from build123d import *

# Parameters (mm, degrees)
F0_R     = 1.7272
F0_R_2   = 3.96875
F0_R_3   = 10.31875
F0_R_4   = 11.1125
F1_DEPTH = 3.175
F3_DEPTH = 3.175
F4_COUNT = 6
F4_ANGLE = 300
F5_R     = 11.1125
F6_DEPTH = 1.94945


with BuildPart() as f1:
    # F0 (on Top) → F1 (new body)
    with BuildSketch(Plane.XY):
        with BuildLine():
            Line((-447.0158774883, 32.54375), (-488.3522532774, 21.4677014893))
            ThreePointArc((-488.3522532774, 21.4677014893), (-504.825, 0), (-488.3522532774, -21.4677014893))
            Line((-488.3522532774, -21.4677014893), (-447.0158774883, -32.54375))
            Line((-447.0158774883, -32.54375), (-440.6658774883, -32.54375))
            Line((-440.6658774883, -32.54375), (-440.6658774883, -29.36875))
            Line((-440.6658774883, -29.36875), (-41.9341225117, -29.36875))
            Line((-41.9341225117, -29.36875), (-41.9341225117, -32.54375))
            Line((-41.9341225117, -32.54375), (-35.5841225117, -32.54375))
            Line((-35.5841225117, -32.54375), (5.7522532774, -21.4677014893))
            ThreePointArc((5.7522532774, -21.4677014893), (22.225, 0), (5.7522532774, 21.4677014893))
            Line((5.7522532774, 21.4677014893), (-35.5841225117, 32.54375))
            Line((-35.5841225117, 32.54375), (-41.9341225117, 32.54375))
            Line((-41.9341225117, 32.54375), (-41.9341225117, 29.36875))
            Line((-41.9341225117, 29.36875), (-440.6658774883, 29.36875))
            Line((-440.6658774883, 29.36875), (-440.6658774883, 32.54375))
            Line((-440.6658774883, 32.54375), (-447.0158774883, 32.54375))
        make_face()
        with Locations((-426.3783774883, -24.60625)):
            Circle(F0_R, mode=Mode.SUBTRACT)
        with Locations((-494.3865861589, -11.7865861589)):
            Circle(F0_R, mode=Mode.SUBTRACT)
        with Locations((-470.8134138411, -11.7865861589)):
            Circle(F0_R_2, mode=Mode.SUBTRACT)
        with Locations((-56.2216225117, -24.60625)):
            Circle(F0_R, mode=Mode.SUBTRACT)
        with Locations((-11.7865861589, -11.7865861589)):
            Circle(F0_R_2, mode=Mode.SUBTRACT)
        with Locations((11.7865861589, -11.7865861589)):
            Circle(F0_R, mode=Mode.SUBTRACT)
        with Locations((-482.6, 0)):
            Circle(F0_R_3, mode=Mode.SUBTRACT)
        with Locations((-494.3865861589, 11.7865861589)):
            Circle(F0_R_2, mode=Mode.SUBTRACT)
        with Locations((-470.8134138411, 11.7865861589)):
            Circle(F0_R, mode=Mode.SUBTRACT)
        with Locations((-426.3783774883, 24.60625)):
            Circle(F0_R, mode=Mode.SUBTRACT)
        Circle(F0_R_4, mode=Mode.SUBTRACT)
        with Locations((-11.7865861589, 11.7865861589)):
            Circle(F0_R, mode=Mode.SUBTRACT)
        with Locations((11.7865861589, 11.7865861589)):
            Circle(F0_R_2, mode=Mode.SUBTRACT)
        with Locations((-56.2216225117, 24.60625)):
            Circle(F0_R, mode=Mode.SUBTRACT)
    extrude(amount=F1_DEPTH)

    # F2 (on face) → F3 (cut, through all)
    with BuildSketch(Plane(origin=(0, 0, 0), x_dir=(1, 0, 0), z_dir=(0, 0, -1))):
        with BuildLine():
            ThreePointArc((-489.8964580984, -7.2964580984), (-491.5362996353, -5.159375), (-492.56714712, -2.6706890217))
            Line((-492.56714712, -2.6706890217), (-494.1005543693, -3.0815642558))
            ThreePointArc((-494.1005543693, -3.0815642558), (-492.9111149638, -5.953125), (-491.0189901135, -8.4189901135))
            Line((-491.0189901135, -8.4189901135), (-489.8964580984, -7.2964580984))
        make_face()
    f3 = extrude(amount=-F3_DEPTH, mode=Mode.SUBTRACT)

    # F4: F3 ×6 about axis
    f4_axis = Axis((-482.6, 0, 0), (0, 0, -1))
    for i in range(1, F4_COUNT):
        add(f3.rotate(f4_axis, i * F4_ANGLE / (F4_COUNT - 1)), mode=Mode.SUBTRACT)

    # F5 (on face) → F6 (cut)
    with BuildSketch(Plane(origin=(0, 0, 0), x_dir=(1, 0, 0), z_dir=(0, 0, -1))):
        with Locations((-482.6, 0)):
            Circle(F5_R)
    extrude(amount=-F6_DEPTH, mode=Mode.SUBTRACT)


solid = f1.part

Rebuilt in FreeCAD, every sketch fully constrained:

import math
import FreeCAD as App
import Part
import Sketcher
Q = App.Units.Quantity

doc = App.newDocument("Part")
body = doc.addObject("PartDesign::Body", "Body")

# Sketch on XY plane
sketch1 = body.newObject("Sketcher::SketchObject", "Sketch")
sketch1.AttachmentSupport = (doc.getObject("XY_Plane"), [""])
sketch1.MapMode = "FlatFace"
sketch1.addGeometry([
    Part.LineSegment(App.Vector(-447, 32.5, 0), App.Vector(-488.4, 21.5, 0)),  # 0
    Part.ArcOfCircle(Part.Circle(App.Vector(-482.6, 0, 0), App.Vector(0, 0, 1), 22.2), math.radians(105), math.radians(255)),  # 1
    Part.LineSegment(App.Vector(-488.4, -21.5, 0), App.Vector(-447, -32.5, 0)),  # 2
    Part.LineSegment(App.Vector(-447, -32.5, 0), App.Vector(-440.7, -32.5, 0)),  # 3
    Part.LineSegment(App.Vector(-440.7, -32.5, 0), App.Vector(-440.7, -29.4, 0)),  # 4
    Part.LineSegment(App.Vector(-440.7, -29.4, 0), App.Vector(-41.9, -29.4, 0)),  # 5
    Part.LineSegment(App.Vector(-41.9, -29.4, 0), App.Vector(-41.9, -32.5, 0)),  # 6
    Part.LineSegment(App.Vector(-41.9, -32.5, 0), App.Vector(-35.6, -32.5, 0)),  # 7
    Part.LineSegment(App.Vector(-35.6, -32.5, 0), App.Vector(5.8, -21.5, 0)),  # 8
    Part.ArcOfCircle(Part.Circle(App.Vector(0, 0, 0), App.Vector(0, 0, 1), 22.2), math.radians(-75), math.radians(75)),  # 9
    Part.LineSegment(App.Vector(5.8, 21.5, 0), App.Vector(-35.6, 32.5, 0)),  # 10
    Part.LineSegment(App.Vector(-35.6, 32.5, 0), App.Vector(-41.9, 32.5, 0)),  # 11
    Part.LineSegment(App.Vector(-41.9, 32.5, 0), App.Vector(-41.9, 29.4, 0)),  # 12
    Part.LineSegment(App.Vector(-41.9, 29.4, 0), App.Vector(-440.7, 29.4, 0)),  # 13
    Part.LineSegment(App.Vector(-440.7, 29.4, 0), App.Vector(-440.7, 32.5, 0)),  # 14
    Part.LineSegment(App.Vector(-440.7, 32.5, 0), App.Vector(-447, 32.5, 0)),  # 15
    Part.Circle(App.Vector(-426.4, -24.6, 0), App.Vector(0, 0, 1), 1.7),  # 16
    Part.Circle(App.Vector(-494.4, -11.8, 0), App.Vector(0, 0, 1), 1.7),  # 17
    Part.Circle(App.Vector(-470.8, -11.8, 0), App.Vector(0, 0, 1), 4),  # 18
    Part.Circle(App.Vector(-56.2, -24.6, 0), App.Vector(0, 0, 1), 1.7),  # 19
    Part.Circle(App.Vector(-11.8, -11.8, 0), App.Vector(0, 0, 1), 4),  # 20
    Part.Circle(App.Vector(11.8, -11.8, 0), App.Vector(0, 0, 1), 1.7),  # 21
    Part.Circle(App.Vector(-482.6, 0, 0), App.Vector(0, 0, 1), 10.3),  # 22
    Part.Circle(App.Vector(-494.4, 11.8, 0), App.Vector(0, 0, 1), 4),  # 23
    Part.Circle(App.Vector(-470.8, 11.8, 0), App.Vector(0, 0, 1), 1.7),  # 24
    Part.Circle(App.Vector(-426.4, 24.6, 0), App.Vector(0, 0, 1), 1.7),  # 25
    Part.Circle(App.Vector(0, 0, 0), App.Vector(0, 0, 1), 11.1),  # 26
    Part.Circle(App.Vector(-11.8, 11.8, 0), App.Vector(0, 0, 1), 1.7),  # 27
    Part.Circle(App.Vector(11.8, 11.8, 0), App.Vector(0, 0, 1), 4),  # 28
    Part.Circle(App.Vector(-56.2, 24.6, 0), App.Vector(0, 0, 1), 1.7),  # 29
], False)
sketch1.addConstraint([
    Sketcher.Constraint("Tangent", 0, 2, 1, 1),
    Sketcher.Constraint("Tangent", 1, 2, 2, 1),
    Sketcher.Constraint("Coincident", 2, 2, 3, 1),
    Sketcher.Constraint("Coincident", 3, 2, 4, 1),
    Sketcher.Constraint("Coincident", 4, 2, 5, 1),
    Sketcher.Constraint("Coincident", 5, 2, 6, 1),
    Sketcher.Constraint("Coincident", 6, 2, 7, 1),
    Sketcher.Constraint("Coincident", 7, 2, 8, 1),
    Sketcher.Constraint("Tangent", 8, 2, 9, 1),
    Sketcher.Constraint("Tangent", 9, 2, 10, 1),
    Sketcher.Constraint("Coincident", 10, 2, 11, 1),
    Sketcher.Constraint("Coincident", 11, 2, 12, 1),
    Sketcher.Constraint("Coincident", 12, 2, 13, 1),
    Sketcher.Constraint("Coincident", 13, 2, 14, 1),
    Sketcher.Constraint("Coincident", 14, 2, 15, 1),
    Sketcher.Constraint("Coincident", 15, 2, 0, 1),
    Sketcher.Constraint("Horizontal", 3),
    Sketcher.Constraint("Vertical", 4),
    Sketcher.Constraint("Horizontal", 5),
    Sketcher.Constraint("Vertical", 6),
    Sketcher.Constraint("Horizontal", 7),
    Sketcher.Constraint("Horizontal", 11),
    Sketcher.Constraint("Vertical", 12),
    Sketcher.Constraint("Horizontal", 13),
    Sketcher.Constraint("Vertical", 14),
    Sketcher.Constraint("Horizontal", 15),
    Sketcher.Constraint("Coincident", 9, 3, -1, 1),
    Sketcher.Constraint("Coincident", 26, 3, -1, 1),
    Sketcher.Constraint("Coincident", 22, 3, 1, 3),
    Sketcher.Constraint("Equal", 1, 9),
    Sketcher.Constraint("Equal", 16, 17),
    Sketcher.Constraint("Equal", 17, 19),
    Sketcher.Constraint("Equal", 18, 20),
    Sketcher.Constraint("Equal", 19, 21),
    Sketcher.Constraint("Equal", 20, 23),
    Sketcher.Constraint("Equal", 21, 24),
    Sketcher.Constraint("Equal", 24, 25),
    Sketcher.Constraint("Equal", 25, 27),
    Sketcher.Constraint("Equal", 23, 28),
    Sketcher.Constraint("Equal", 27, 29),
    Sketcher.Constraint("Symmetric", 21, 3, 27, 3, -1, 1),
    Sketcher.Constraint("Symmetric", 20, 3, 28, 3, -1, 1),
    Sketcher.Constraint("Symmetric", 20, 3, 21, 3, -2),
    Sketcher.Constraint("Symmetric", 17, 3, 23, 3, -1),
    Sketcher.Constraint("Symmetric", 18, 3, 24, 3, -1),
    Sketcher.Constraint("Symmetric", 16, 3, 25, 3, -1),
    Sketcher.Constraint("Symmetric", 19, 3, 29, 3, -1),
    Sketcher.Constraint("Symmetric", 0, 2, 1, 2, -1),
    Sketcher.Constraint("Symmetric", 7, 2, 10, 2, -1),
    Sketcher.Constraint("Symmetric", 5, 2, 12, 2, -1),
    Sketcher.Constraint("Symmetric", 3, 2, 14, 2, -1),
    Sketcher.Constraint("Parallel", 0, 8),
    Sketcher.Constraint("Horizontal", 17, 3, 18, 3),
    Sketcher.Constraint("Horizontal", 16, 3, 19, 3),
    Sketcher.Constraint("Horizontal", 18, 3, 20, 3),
    Sketcher.Constraint("Horizontal", 3, 2, 6, 2),
    Sketcher.Constraint("Equal", 3, 7),
    Sketcher.Constraint("Diameter", 16, Q("0.136 in")),
    Sketcher.Constraint("Diameter", 18, Q("0.3125 in")),
    Sketcher.Constraint("Diameter", 22, Q("0.8125 in")),
    Sketcher.Constraint("Diameter", 26, Q("0.875 in")),
    Sketcher.Constraint("DistanceX", 1, 3, -1, 1, Q("19 in")),
    Sketcher.Constraint("Angle", 0, Q("-165 deg")),
    Sketcher.Constraint("Radius", 1, Q("0.875 in")),
    Sketcher.Constraint("DistanceX", 18, 3, 21, 3, Q("19 in")),
    Sketcher.Constraint("DistanceX", 3, 1, 3, 2, Q("0.25 in")),
    Sketcher.Constraint("DistanceY", 4, 1, 4, 2, Q("0.125 in")),
    Sketcher.Constraint("DistanceY", 16, 3, -1, 1, Q("0.96875 in")),
    Sketcher.Constraint("DistanceY", 2, 2, -1, 1, Q("1.28125 in")),
    Sketcher.Constraint("DistanceX", 2, 2, 16, 3, Q("0.8125 in")),
    Sketcher.Constraint("DistanceX", 19, 3, 5, 2, Q("0.5625 in")),
    Sketcher.Constraint("DistanceX", 17, 3, 16, 3, Q("68.008209 mm")),
    Sketcher.Constraint("DistanceX", 18, 3, 19, 3, Q("414.591791 mm")),
    Sketcher.Constraint("DistanceY", 17, 3, -1, 1, Q("11.786586 mm")),
])
pad1 = body.newObject("PartDesign::Pad", "Pad")
pad1.Profile = sketch1
pad1.Length = Q("0.125 in")

# Sketch on XY plane
sketch2 = body.newObject("Sketcher::SketchObject", "Sketch001")
sketch2.AttachmentSupport = (doc.getObject("XY_Plane"), [""])
sketch2.MapMode = "FlatFace"
sketch2.addGeometry([
    Part.ArcOfCircle(Part.Circle(App.Vector(-482.6, 0, 0), App.Vector(0, 0, 1), 10.3), math.radians(135), math.radians(165)),
    Part.LineSegment(App.Vector(-492.6, 2.7, 0), App.Vector(-494.1, 3.1, 0)),
    Part.ArcOfCircle(Part.Circle(App.Vector(-482.6, 0, 0), App.Vector(0, 0, 1), 11.9), math.radians(135), math.radians(165)),
    Part.LineSegment(App.Vector(-491, 8.4, 0), App.Vector(-489.9, 7.3, 0)),
], False)
sketch2.addConstraint([
    Sketcher.Constraint("Coincident", 0, 2, 1, 1),
    Sketcher.Constraint("Coincident", 1, 2, 2, 2),
    Sketcher.Constraint("Coincident", 2, 1, 3, 1),
    Sketcher.Constraint("Coincident", 3, 2, 0, 1),
    Sketcher.Constraint("Coincident", 2, 3, 0, 3),
    Sketcher.Constraint("PointOnObject", 0, 3, -1),
    Sketcher.Constraint("DistanceX", 0, 3, -1, 1, Q("19 in")),
    Sketcher.Constraint("Angle", 1, Q("165 deg")),
    Sketcher.Constraint("Angle", 3, Q("-45 deg")),
    Sketcher.Constraint("Radius", 0, Q("0.40625 in")),
    Sketcher.Constraint("Radius", 2, Q("0.46875 in")),
    Sketcher.Constraint("DistanceY", 0, 2, 2, 1, Q("5.748301 mm")),
    Sketcher.Constraint("DistanceY", -1, 1, 0, 2, Q("2.670689 mm")),
])
pocket1 = body.newObject("PartDesign::Pocket", "Pocket")
pocket1.Profile = sketch2
pocket1.Type = "ThroughAll"
pocket1.Reversed = True
doc.recompute()

datumline = body.newObject("PartDesign::Line", "DatumLine")
datumline.Placement = App.Placement(App.Vector(-482.6, 0, 0), App.Rotation(App.Vector(0, 0, 1), App.Vector(0, 0, -1)))
polarpattern = body.newObject("PartDesign::PolarPattern", "PolarPattern")
polarpattern.Originals = [pocket1]
polarpattern.Axis = (datumline, [""])
polarpattern.Angle = 360
polarpattern.Occurrences = 6
body.Tip = polarpattern

# Sketch on XY plane
sketch3 = body.newObject("Sketcher::SketchObject", "Sketch002")
sketch3.AttachmentSupport = (doc.getObject("XY_Plane"), [""])
sketch3.MapMode = "FlatFace"
sketch3.addGeometry(Part.Circle(App.Vector(-483, 0, 0), App.Vector(0, 0, 1), 11), False)
sketch3.addConstraint([
    Sketcher.Constraint("PointOnObject", 0, 3, -1),
    Sketcher.Constraint("Diameter", 0, Q("0.875 in")),
    Sketcher.Constraint("DistanceX", 0, 3, -1, 1, Q("19 in")),
])
pocket2 = body.newObject("PartDesign::Pocket", "Pocket001")
pocket2.Profile = sketch3
pocket2.Length = 1.94945
pocket2.Reversed = True

doc.recompute()
